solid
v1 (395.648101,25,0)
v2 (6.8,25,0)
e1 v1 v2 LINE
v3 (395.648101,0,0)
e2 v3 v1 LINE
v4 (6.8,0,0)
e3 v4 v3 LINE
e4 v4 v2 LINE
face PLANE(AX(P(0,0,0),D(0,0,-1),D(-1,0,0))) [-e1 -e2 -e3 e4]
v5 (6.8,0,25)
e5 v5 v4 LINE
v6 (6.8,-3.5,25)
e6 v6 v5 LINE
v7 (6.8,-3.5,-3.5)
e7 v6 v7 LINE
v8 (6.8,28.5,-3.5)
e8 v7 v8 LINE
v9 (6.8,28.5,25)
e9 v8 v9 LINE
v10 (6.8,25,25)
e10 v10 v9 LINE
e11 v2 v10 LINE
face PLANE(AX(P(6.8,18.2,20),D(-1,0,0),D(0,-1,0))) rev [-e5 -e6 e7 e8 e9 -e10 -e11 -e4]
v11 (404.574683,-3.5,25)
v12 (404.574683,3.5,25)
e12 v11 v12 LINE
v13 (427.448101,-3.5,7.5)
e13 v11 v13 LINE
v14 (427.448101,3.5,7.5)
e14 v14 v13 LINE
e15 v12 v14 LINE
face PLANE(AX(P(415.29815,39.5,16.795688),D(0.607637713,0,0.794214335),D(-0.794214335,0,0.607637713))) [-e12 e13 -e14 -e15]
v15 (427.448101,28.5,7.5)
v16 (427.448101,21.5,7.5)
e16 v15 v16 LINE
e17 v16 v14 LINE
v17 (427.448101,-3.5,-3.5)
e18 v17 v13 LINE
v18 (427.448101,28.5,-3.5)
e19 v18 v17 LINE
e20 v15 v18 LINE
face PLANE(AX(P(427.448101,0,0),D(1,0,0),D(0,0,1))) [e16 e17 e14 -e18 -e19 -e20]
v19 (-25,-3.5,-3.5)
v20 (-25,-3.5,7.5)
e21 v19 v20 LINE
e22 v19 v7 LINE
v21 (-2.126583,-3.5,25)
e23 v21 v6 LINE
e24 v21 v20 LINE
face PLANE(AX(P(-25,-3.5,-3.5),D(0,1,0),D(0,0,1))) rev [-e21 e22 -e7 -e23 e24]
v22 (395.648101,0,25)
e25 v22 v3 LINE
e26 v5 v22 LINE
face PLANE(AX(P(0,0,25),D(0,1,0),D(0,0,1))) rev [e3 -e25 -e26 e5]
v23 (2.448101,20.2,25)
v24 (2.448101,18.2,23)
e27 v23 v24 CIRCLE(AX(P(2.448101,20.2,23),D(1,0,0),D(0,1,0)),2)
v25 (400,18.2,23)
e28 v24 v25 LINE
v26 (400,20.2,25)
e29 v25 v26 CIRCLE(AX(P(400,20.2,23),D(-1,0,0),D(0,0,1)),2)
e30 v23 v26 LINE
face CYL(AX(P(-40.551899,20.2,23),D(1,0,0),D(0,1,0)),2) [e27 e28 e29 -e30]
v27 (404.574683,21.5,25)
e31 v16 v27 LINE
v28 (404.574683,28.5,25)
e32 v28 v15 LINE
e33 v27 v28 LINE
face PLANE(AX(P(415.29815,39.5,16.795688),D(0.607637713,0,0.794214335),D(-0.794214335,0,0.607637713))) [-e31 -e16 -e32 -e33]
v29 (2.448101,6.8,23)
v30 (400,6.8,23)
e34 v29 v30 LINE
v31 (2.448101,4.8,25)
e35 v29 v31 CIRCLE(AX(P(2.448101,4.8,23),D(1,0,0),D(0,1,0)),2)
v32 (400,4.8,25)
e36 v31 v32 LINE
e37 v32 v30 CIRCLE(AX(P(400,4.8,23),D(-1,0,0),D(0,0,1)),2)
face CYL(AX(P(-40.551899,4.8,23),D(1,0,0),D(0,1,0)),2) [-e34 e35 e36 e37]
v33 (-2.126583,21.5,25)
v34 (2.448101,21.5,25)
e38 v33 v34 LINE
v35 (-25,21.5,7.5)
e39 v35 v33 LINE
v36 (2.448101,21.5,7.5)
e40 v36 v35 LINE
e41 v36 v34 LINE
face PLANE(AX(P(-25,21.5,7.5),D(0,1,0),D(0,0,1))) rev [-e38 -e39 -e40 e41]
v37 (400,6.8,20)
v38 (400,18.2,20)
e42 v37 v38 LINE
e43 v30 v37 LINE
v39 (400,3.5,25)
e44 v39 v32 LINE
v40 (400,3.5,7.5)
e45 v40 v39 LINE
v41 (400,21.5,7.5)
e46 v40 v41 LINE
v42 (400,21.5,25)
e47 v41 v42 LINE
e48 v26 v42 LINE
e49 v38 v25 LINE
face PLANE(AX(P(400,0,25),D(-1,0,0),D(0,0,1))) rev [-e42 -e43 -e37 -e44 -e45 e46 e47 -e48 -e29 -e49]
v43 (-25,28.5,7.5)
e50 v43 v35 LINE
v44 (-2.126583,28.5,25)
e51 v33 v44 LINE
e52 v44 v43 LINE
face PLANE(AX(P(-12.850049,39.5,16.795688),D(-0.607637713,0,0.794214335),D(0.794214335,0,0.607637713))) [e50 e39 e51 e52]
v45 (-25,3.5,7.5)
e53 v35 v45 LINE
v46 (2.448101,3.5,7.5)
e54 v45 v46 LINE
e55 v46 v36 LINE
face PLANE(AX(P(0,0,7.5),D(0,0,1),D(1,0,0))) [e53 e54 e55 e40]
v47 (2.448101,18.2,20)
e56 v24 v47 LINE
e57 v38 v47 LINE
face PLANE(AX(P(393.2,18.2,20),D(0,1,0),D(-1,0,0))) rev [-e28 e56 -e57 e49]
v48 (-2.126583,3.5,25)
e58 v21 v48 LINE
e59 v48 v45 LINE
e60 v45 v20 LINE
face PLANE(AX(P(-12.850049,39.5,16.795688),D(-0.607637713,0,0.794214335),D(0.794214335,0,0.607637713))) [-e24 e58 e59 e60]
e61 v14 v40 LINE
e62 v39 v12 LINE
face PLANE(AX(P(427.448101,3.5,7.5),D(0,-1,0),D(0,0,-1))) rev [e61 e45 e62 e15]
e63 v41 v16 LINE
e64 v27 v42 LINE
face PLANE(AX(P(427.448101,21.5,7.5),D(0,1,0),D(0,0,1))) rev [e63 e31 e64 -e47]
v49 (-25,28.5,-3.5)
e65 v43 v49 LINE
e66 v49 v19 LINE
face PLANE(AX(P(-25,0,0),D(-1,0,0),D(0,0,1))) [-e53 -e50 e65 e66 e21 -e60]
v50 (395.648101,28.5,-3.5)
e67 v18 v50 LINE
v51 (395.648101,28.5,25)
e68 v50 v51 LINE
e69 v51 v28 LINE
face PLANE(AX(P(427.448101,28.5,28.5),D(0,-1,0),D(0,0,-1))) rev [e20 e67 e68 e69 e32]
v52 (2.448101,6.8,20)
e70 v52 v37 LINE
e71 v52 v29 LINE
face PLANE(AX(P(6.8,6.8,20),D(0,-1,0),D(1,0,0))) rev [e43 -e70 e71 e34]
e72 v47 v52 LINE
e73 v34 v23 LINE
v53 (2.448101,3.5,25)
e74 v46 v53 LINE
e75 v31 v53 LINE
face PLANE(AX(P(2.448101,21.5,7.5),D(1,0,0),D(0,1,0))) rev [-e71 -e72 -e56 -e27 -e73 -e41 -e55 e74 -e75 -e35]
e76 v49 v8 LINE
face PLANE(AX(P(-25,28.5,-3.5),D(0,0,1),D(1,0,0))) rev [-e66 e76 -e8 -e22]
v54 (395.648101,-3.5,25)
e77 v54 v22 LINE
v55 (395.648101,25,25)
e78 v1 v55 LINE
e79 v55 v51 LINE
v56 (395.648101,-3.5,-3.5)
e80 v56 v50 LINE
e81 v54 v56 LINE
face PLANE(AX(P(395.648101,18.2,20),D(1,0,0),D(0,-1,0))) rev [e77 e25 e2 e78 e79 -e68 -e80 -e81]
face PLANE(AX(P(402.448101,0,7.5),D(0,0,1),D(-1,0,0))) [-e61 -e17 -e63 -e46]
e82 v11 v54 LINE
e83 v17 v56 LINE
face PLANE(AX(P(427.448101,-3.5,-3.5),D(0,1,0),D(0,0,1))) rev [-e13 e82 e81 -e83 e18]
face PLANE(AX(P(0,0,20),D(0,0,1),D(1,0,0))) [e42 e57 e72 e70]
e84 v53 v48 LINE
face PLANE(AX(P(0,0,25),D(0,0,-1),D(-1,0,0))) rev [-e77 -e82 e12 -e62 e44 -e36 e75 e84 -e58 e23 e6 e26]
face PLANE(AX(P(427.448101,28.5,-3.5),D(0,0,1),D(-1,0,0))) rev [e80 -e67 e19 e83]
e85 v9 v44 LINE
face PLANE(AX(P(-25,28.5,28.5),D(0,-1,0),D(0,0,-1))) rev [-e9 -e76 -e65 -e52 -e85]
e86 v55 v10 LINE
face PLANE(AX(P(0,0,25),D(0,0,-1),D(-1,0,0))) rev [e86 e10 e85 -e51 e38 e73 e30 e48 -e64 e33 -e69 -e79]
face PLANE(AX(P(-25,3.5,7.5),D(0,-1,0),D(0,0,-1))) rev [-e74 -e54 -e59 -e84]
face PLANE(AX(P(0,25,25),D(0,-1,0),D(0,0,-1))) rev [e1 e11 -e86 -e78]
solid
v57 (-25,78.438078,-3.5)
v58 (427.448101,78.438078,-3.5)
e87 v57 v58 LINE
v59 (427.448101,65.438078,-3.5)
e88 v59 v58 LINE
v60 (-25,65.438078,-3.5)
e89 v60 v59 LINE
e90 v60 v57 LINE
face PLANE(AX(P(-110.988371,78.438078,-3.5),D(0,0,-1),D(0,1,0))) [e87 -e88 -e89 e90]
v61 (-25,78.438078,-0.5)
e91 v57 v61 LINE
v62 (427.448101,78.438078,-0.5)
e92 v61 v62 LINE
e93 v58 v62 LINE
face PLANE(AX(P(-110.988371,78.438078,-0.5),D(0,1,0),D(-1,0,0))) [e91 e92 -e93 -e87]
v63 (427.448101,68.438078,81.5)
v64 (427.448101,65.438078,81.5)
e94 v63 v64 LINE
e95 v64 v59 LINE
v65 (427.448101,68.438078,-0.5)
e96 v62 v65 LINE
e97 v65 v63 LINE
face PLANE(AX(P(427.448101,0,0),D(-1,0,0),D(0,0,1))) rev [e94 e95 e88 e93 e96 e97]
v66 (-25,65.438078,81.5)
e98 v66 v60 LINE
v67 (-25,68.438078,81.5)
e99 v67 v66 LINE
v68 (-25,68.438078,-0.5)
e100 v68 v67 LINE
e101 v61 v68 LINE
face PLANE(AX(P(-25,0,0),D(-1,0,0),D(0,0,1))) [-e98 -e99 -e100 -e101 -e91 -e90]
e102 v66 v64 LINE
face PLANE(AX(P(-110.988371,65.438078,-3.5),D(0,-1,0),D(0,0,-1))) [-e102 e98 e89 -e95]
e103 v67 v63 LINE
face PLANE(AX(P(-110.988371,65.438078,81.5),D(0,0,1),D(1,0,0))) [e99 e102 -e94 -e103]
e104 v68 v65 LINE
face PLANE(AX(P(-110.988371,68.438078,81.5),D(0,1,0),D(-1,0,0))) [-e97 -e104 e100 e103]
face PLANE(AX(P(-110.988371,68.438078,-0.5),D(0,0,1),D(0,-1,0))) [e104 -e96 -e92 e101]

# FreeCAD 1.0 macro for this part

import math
import FreeCAD as App
import Part
import Sketcher
from FreeCAD import Vector
Q = App.Units.Quantity

doc = App.newDocument("Part")
params = doc.addObject("Spreadsheet::Sheet", "Params")
for row, (alias, value) in enumerate([
    ("sketch1_width", "400 mm"),
    ("sketch1_height", "25 mm"),
    ("pad1_length", "25 mm"),
    ("sketch2_width", "386.4 mm"),
    ("sketch2_height", "11.4 mm"),
    ("pocket1_length", "5 mm"),
    ("sketch3_width", "32 mm"),
    ("sketch3_width2", "25 mm"),
    ("pad2_length", "6.8 mm"),
    ("sketch4_width", "32 mm"),
    ("pad3_length", "25 mm"),
    ("sketch5_height", "18 mm"),
    ("pocket2_length", "21 mm"),
    ("sketch6_height", "21 mm"),
    ("pocket3_length", "43 mm"),
    ("sketch7_radius", "2 mm"),
    ("sketch7_height", "3 mm"),
    ("sketch7_width", "11.4 mm"),
    ("sketch8_width", "13 mm"),
    ("sketch8_width2", "10 mm"),
    ("sketch8_height", "82 mm"),
    ("pad4_length", "452.448101 mm"),
], start=1):
    params.set(f"A{row}", alias)
    params.set(f"B{row}", "=" + value)
    params.setAlias(f"B{row}", alias)

body = doc.addObject("PartDesign::Body", "Body")

# Sketch on XY plane
sketch1 = doc.addObject("Sketcher::SketchObject", "Sketch")
body.addObject(sketch1)
sketch1.AttachmentSupport = (doc.XY_Plane, [""])
sketch1.MapMode = "FlatFace"
sketch1.addGeometry([
    Part.LineSegment(Vector(0, 25, 0), Vector(0, 0, 0)),
    Part.LineSegment(Vector(0, 0, 0), Vector(400, 0, 0)),
    Part.LineSegment(Vector(400, 0, 0), Vector(400, 25, 0)),
    Part.LineSegment(Vector(400, 25, 0), Vector(0, 25, 0)),
], False)
sketch1.addConstraint([
    Sketcher.Constraint("Coincident", 0, 2, 1, 1),
    Sketcher.Constraint("Coincident", 1, 2, 2, 1),
    Sketcher.Constraint("Coincident", 2, 2, 3, 1),
    Sketcher.Constraint("Coincident", 3, 2, 0, 1),
    Sketcher.Constraint("Vertical", 0),
    Sketcher.Constraint("Horizontal", 1),
    Sketcher.Constraint("Vertical", 2),
    Sketcher.Constraint("Horizontal", 3),
    Sketcher.Constraint("Coincident", 0, 2, -1, 1),
    Sketcher.Constraint("DistanceX", 1, 1, 1, 2, Q("400 mm")),
    Sketcher.Constraint("DistanceY", 0, 2, 0, 1, Q("25 mm")),
])
sketch1.setExpression("Constraints[9]", "Params.sketch1_width")
sketch1.setExpression("Constraints[10]", "Params.sketch1_height")
pad1 = doc.addObject("PartDesign::Pad", "Pad")
body.addObject(pad1)
pad1.Profile = sketch1
pad1.setExpression("Length", "Params.pad1_length")

# Sketch on XY plane
sketch2 = doc.addObject("Sketcher::SketchObject", "Sketch001")
body.addObject(sketch2)
sketch2.AttachmentSupport = (doc.XY_Plane, [""])
sketch2.MapMode = "FlatFace"
sketch2.AttachmentOffset = App.Placement(Vector(0, 0, 25), App.Rotation())
sketch2.addGeometry([
    Part.LineSegment(Vector(6.8, 18.2, 0), Vector(6.8, 6.8, 0)),
    Part.LineSegment(Vector(6.8, 6.8, 0), Vector(393.2, 6.8, 0)),
    Part.LineSegment(Vector(393.2, 6.8, 0), Vector(393.2, 18.2, 0)),
    Part.LineSegment(Vector(393.2, 18.2, 0), Vector(6.8, 18.2, 0)),
], False)
sketch2.addConstraint([
    Sketcher.Constraint("Coincident", 0, 2, 1, 1),
    Sketcher.Constraint("Coincident", 1, 2, 2, 1),
    Sketcher.Constraint("Coincident", 2, 2, 3, 1),
    Sketcher.Constraint("Coincident", 3, 2, 0, 1),
    Sketcher.Constraint("Vertical", 0),
    Sketcher.Constraint("Horizontal", 1),
    Sketcher.Constraint("Vertical", 2),
    Sketcher.Constraint("Horizontal", 3),
    Sketcher.Constraint("DistanceX", 1, 1, 1, 2, Q("386.4 mm")),
    Sketcher.Constraint("DistanceY", 0, 2, 0, 1, Q("11.4 mm")),
    Sketcher.Constraint("DistanceX", -1, 1, 0, 2, Q("6.8 mm")),
    Sketcher.Constraint("DistanceY", -1, 1, 0, 2, Q("6.8 mm")),
])
sketch2.setExpression("Constraints[8]", "Params.sketch2_width")
sketch2.setExpression("Constraints[9]", "Params.sketch2_height")
pocket1 = doc.addObject("PartDesign::Pocket", "Pocket")
body.addObject(pocket1)
pocket1.Profile = sketch2
pocket1.setExpression("Length", "Params.pocket1_length")
body2 = doc.addObject("PartDesign::Body", "Body001")

# Sketch on YZ plane
sketch3 = doc.addObject("Sketcher::SketchObject", "Sketch002")
body2.addObject(sketch3)
sketch3.AttachmentSupport = (doc.getObject("YZ_Plane001"), [""])
sketch3.MapMode = "FlatFace"
sketch3.AttachmentOffset = App.Placement(Vector(0, 0, 6.8), App.Rotation())
sketch3.addGeometry([
    Part.LineSegment(Vector(28.5, 28.5, 0), Vector(-3.5, 28.5, 0)),  # 0
    Part.LineSegment(Vector(-3.5, 28.5, 0), Vector(-3.5, -3.5, 0)),  # 1
    Part.LineSegment(Vector(-3.5, -3.5, 0), Vector(28.5, -3.5, 0)),  # 2
    Part.LineSegment(Vector(28.5, -3.5, 0), Vector(28.5, 28.5, 0)),  # 3
    Part.LineSegment(Vector(0, 0, 0), Vector(0, 25, 0)),  # 4
    Part.LineSegment(Vector(0, 25, 0), Vector(25, 25, 0)),  # 5
    Part.LineSegment(Vector(25, 25, 0), Vector(25, 0, 0)),  # 6
    Part.LineSegment(Vector(25, 0, 0), Vector(0, 0, 0)),  # 7
], False)
sketch3.addConstraint([
    Sketcher.Constraint("Coincident", 0, 2, 1, 1),
    Sketcher.Constraint("Coincident", 1, 2, 2, 1),
    Sketcher.Constraint("Coincident", 2, 2, 3, 1),
    Sketcher.Constraint("Coincident", 3, 2, 0, 1),
    Sketcher.Constraint("Coincident", 4, 2, 5, 1),
    Sketcher.Constraint("Coincident", 5, 2, 6, 1),
    Sketcher.Constraint("Coincident", 6, 2, 7, 1),
    Sketcher.Constraint("Coincident", 7, 2, 4, 1),
    Sketcher.Constraint("Horizontal", 0),
    Sketcher.Constraint("Vertical", 1),
    Sketcher.Constraint("Horizontal", 2),
    Sketcher.Constraint("Vertical", 3),
    Sketcher.Constraint("Vertical", 4),
    Sketcher.Constraint("Horizontal", 5),
    Sketcher.Constraint("Vertical", 6),
    Sketcher.Constraint("Horizontal", 7),
    Sketcher.Constraint("Coincident", 7, 2, -1, 1),
    Sketcher.Constraint("Equal", 2, 1),
    Sketcher.Constraint("Equal", 7, 4),
    Sketcher.Constraint("DistanceX", 0, 2, 0, 1, Q("32 mm")),
    Sketcher.Constraint("DistanceX", 5, 1, 5, 2, Q("25 mm")),
    Sketcher.Constraint("DistanceX", 0, 2, -1, 1, Q("3.5 mm")),
    Sketcher.Constraint("DistanceY", -1, 1, 0, 2, Q("28.5 mm")),
])
sketch3.setExpression("Constraints[19]", "Params.sketch3_width")
sketch3.setExpression("Constraints[20]", "Params.sketch3_width2")
pad2 = doc.addObject("PartDesign::Pad", "Pad001")
body2.addObject(pad2)
pad2.Profile = sketch3
pad2.setExpression("Length", "Params.pad2_length")
pad2.Reversed = True
doc.recompute()

boolean = doc.addObject("PartDesign::Boolean", "Boolean")
body.addObject(boolean)
boolean.Type = "Fuse"
boolean.addObjects([body2])

# Sketch on YZ plane
sketch4 = doc.addObject("Sketcher::SketchObject", "Sketch003")
body.addObject(sketch4)
sketch4.AttachmentSupport = (doc.YZ_Plane, [""])
sketch4.MapMode = "FlatFace"
sketch4.addGeometry([
    Part.LineSegment(Vector(28.5, -3.5, 0), Vector(-3.5, -3.5, 0)),
    Part.LineSegment(Vector(-3.5, -3.5, 0), Vector(-3.5, 28.5, 0)),
    Part.LineSegment(Vector(-3.5, 28.5, 0), Vector(28.5, 28.5, 0)),
    Part.LineSegment(Vector(28.5, 28.5, 0), Vector(28.5, -3.5, 0)),
], False)
sketch4.addConstraint([
    Sketcher.Constraint("Coincident", 0, 2, 1, 1),
    Sketcher.Constraint("Coincident", 1, 2, 2, 1),
    Sketcher.Constraint("Coincident", 2, 2, 3, 1),
    Sketcher.Constraint("Coincident", 3, 2, 0, 1),
    Sketcher.Constraint("Horizontal", 0),
    Sketcher.Constraint("Vertical", 1),
    Sketcher.Constraint("Horizontal", 2),
    Sketcher.Constraint("Vertical", 3),
    Sketcher.Constraint("Equal", 2, 1),
    Sketcher.Constraint("DistanceX", 0, 2, 0, 1, Q("32 mm")),
    Sketcher.Constraint("DistanceX", 0, 2, -1, 1, Q("3.5 mm")),
    Sketcher.Constraint("DistanceY", 0, 2, -1, 1, Q("3.5 mm")),
])
sketch4.setExpression("Constraints[9]", "Params.sketch4_width")
pad3 = doc.addObject("PartDesign::Pad", "Pad002")
body.addObject(pad3)
pad3.Profile = sketch4
pad3.setExpression("Length", "Params.pad3_length")
pad3.Reversed = True

# Sketch on XY plane
sketch5 = doc.addObject("Sketcher::SketchObject", "Sketch004")
body.addObject(sketch5)
sketch5.AttachmentSupport = (doc.XY_Plane, [""])
sketch5.MapMode = "FlatFace"
sketch5.AttachmentOffset = App.Placement(Vector(0, 0, 28.5), App.Rotation())
sketch5.addGeometry([
    Part.LineSegment(Vector(-25, 21.5, 0), Vector(-25, 3.5, 0)),
    Part.LineSegment(Vector(-25, 3.5, 0), Vector(2.448101, 3.5, 0)),
    Part.LineSegment(Vector(2.448101, 3.5, 0), Vector(2.448101, 21.5, 0)),
    Part.LineSegment(Vector(2.448101, 21.5, 0), Vector(-25, 21.5, 0)),
], False)
sketch5.addConstraint([
    Sketcher.Constraint("Coincident", 0, 2, 1, 1),
    Sketcher.Constraint("Coincident", 1, 2, 2, 1),
    Sketcher.Constraint("Coincident", 2, 2, 3, 1),
    Sketcher.Constraint("Coincident", 3, 2, 0, 1),
    Sketcher.Constraint("Vertical", 0),
    Sketcher.Constraint("Horizontal", 1),
    Sketcher.Constraint("Vertical", 2),
    Sketcher.Constraint("Horizontal", 3),
    Sketcher.Constraint("DistanceY", 0, 2, 0, 1, Q("18 mm")),
    Sketcher.Constraint("DistanceX", 0, 2, -1, 1, Q("25 mm")),
    Sketcher.Constraint("DistanceY", -1, 1, 0, 2, Q("3.5 mm")),
    Sketcher.Constraint("DistanceX", 1, 1, 1, 2, Q("27.448101 mm")),
])
sketch5.setExpression("Constraints[8]", "Params.sketch5_height")
pocket2 = doc.addObject("PartDesign::Pocket", "Pocket001")
body.addObject(pocket2)
pocket2.Profile = sketch5
pocket2.setExpression("Length", "Params.pocket2_length")

# Sketch on XZ plane
sketch6 = doc.addObject("Sketcher::SketchObject", "Sketch005")
body.addObject(sketch6)
sketch6.AttachmentSupport = (doc.XZ_Plane, [""])
sketch6.MapMode = "FlatFace"
sketch6.AttachmentOffset = App.Placement(Vector(0, 0, 3.5), App.Rotation())
sketch6.addGeometry([
    Part.LineSegment(Vector(2.448101, 28.5, 0), Vector(-25, 28.5, 0)),
    Part.LineSegment(Vector(-25, 28.5, 0), Vector(-25, 7.5, 0)),
    Part.LineSegment(Vector(-25, 7.5, 0), Vector(2.448101, 28.5, 0)),
], False)
sketch6.addConstraint([
    Sketcher.Constraint("Coincident", 0, 2, 1, 1),
    Sketcher.Constraint("Coincident", 1, 2, 2, 1),
    Sketcher.Constraint("Coincident", 2, 2, 0, 1),
    Sketcher.Constraint("Horizontal", 0),
    Sketcher.Constraint("Vertical", 1),
    Sketcher.Constraint("DistanceY", 1, 2, 1, 1, Q("21 mm")),
    Sketcher.Constraint("DistanceX", 0, 2, -1, 1, Q("25 mm")),
    Sketcher.Constraint("DistanceY", -1, 1, 0, 2, Q("28.5 mm")),
    Sketcher.Constraint("DistanceX", 0, 2, 0, 1, Q("27.448101 mm")),
])
sketch6.setExpression("Constraints[5]", "Params.sketch6_height")
pocket3 = doc.addObject("PartDesign::Pocket", "Pocket002")
body.addObject(pocket3)
pocket3.Profile = sketch6
pocket3.setExpression("Length", "Params.pocket3_length")

# Sketch on YZ plane
sketch7 = doc.addObject("Sketcher::SketchObject", "Sketch006")
body.addObject(sketch7)
sketch7.AttachmentSupport = (doc.YZ_Plane, [""])
sketch7.MapMode = "FlatFace"
sketch7.AttachmentOffset = App.Placement(Vector(0, 0, 2.448101), App.Rotation())
sketch7.addGeometry([
    Part.LineSegment(Vector(6.8, 20, 0), Vector(6.8, 23, 0)),  # 0
    Part.ArcOfCircle(Part.Circle(Vector(4.8, 23, 0), Vector(0, 0, 1), 2), math.radians(0), math.radians(90)),  # 1
    Part.LineSegment(Vector(4.8, 25, 0), Vector(-5.02084, 25, 0)),  # 2
    Part.LineSegment(Vector(-5.02084, 25, 0), Vector(-5.02084, 31.99159, 0)),  # 3
    Part.LineSegment(Vector(-5.02084, 31.99159, 0), Vector(30.74642, 31.99159, 0)),  # 4
    Part.LineSegment(Vector(30.74642, 31.99159, 0), Vector(30.74642, 25, 0)),  # 5
    Part.LineSegment(Vector(30.74642, 25, 0), Vector(20.2, 25, 0)),  # 6
    Part.ArcOfCircle(Part.Circle(Vector(20.2, 23, 0), Vector(0, 0, 1), 2), math.radians(90), math.radians(180)),  # 7
    Part.LineSegment(Vector(18.2, 23, 0), Vector(18.2, 20, 0)),  # 8
    Part.LineSegment(Vector(18.2, 20, 0), Vector(6.8, 20, 0)),  # 9
], False)
sketch7.addConstraint([
    Sketcher.Constraint("Tangent", 0, 2, 1, 1),
    Sketcher.Constraint("Tangent", 1, 2, 2, 1),
    Sketcher.Constraint("Coincident", 2, 2, 3, 1),
    Sketcher.Constraint("Coincident", 3, 2, 4, 1),
    Sketcher.Constraint("Coincident", 4, 2, 5, 1),
    Sketcher.Constraint("Coincident", 5, 2, 6, 1),
    Sketcher.Constraint("Tangent", 6, 2, 7, 1),
    Sketcher.Constraint("Tangent", 7, 2, 8, 1),
    Sketcher.Constraint("Coincident", 8, 2, 9, 1),
    Sketcher.Constraint("Coincident", 9, 2, 0, 1),
    Sketcher.Constraint("Vertical", 0),
    Sketcher.Constraint("Horizontal", 2),
    Sketcher.Constraint("Vertical", 3),
    Sketcher.Constraint("Horizontal", 4),
    Sketcher.Constraint("Vertical", 5),
    Sketcher.Constraint("Horizontal", 6),
    Sketcher.Constraint("Vertical", 8),
    Sketcher.Constraint("Horizontal", 9),
    Sketcher.Constraint("Equal", 1, 7),
    Sketcher.Constraint("Horizontal", 1, 3, 7, 3),
    Sketcher.Constraint("Radius", 1, Q("2 mm")),
    Sketcher.Constraint("DistanceY", 0, 1, 0, 2, Q("3 mm")),
    Sketcher.Constraint("DistanceX", 9, 2, 9, 1, Q("11.4 mm")),
    Sketcher.Constraint("DistanceY", -1, 1, 1, 3, Q("23 mm")),
    Sketcher.Constraint("DistanceX", -1, 1, 1, 3, Q("4.8 mm")),
    Sketcher.Constraint("DistanceX", 2, 2, 2, 1, Q("9.82084 mm")),
    Sketcher.Constraint("DistanceX", 4, 1, 4, 2, Q("35.767261 mm")),
    Sketcher.Constraint("DistanceY", 3, 1, 3, 2, Q("6.99159 mm")),
])
sketch7.setExpression("Constraints[20]", "Params.sketch7_radius")
sketch7.setExpression("Constraints[21]", "Params.sketch7_height")
sketch7.setExpression("Constraints[22]", "Params.sketch7_width")
pocket4 = doc.addObject("PartDesign::Pocket", "Pocket003")
body.addObject(pocket4)
pocket4.Profile = sketch7
pocket4.Type = "ThroughAll"
pocket4.Midplane = True
body3 = doc.addObject("PartDesign::Body", "Body002")
doc.recompute()

body3.BaseFeature = body
doc.recompute()

mirroring = doc.addObject("Part::Mirroring", "Mirroring")
mirroring.Source = body
mirroring.Base = Vector(201.22405, 0, 0)
mirroring.Normal = Vector(1, 0, 0)
body4 = doc.addObject("PartDesign::Body", "Body003")
body4.BaseFeature = mirroring
boolean2 = doc.addObject("PartDesign::Boolean", "Boolean001")
body3.addObject(boolean2)
boolean2.Type = "Fuse"
boolean2.addObjects([body4])
doc.recompute()
body5 = doc.addObject("PartDesign::Body", "Body004")

# Sketch on YZ plane
sketch8 = doc.addObject("Sketcher::SketchObject", "Sketch007")
body5.addObject(sketch8)
sketch8.AttachmentSupport = (doc.getObject("YZ_Plane004"), [""])
sketch8.MapMode = "FlatFace"
sketch8.AttachmentOffset = App.Placement(Vector(0, 0, 427.448101), App.Rotation())
sketch8.addGeometry([
    Part.LineSegment(Vector(65.438078, -3.5, 0), Vector(78.438078, -3.5, 0)),  # 0
    Part.LineSegment(Vector(78.438078, -3.5, 0), Vector(78.438078, -0.5, 0)),  # 1
    Part.LineSegment(Vector(78.438078, -0.5, 0), Vector(68.438078, -0.5, 0)),  # 2
    Part.LineSegment(Vector(68.438078, -0.5, 0), Vector(68.438078, 81.5, 0)),  # 3
    Part.LineSegment(Vector(68.438078, 81.5, 0), Vector(65.438078, 81.5, 0)),  # 4
    Part.LineSegment(Vector(65.438078, 81.5, 0), Vector(65.438078, -3.5, 0)),  # 5
], False)
sketch8.addConstraint([
    Sketcher.Constraint("Coincident", 0, 2, 1, 1),
    Sketcher.Constraint("Coincident", 1, 2, 2, 1),
    Sketcher.Constraint("Coincident", 2, 2, 3, 1),
    Sketcher.Constraint("Coincident", 3, 2, 4, 1),
    Sketcher.Constraint("Coincident", 4, 2, 5, 1),
    Sketcher.Constraint("Coincident", 5, 2, 0, 1),
    Sketcher.Constraint("Horizontal", 0),
    Sketcher.Constraint("Vertical", 1),
    Sketcher.Constraint("Horizontal", 2),
    Sketcher.Constraint("Vertical", 3),
    Sketcher.Constraint("Horizontal", 4),
    Sketcher.Constraint("Vertical", 5),
    Sketcher.Constraint("Equal", 4, 1),
    Sketcher.Constraint("DistanceX", 0, 1, 0, 2, Q("13 mm")),
    Sketcher.Constraint("DistanceX", 2, 2, 2, 1, Q("10 mm")),
    Sketcher.Constraint("DistanceY", 3, 1, 3, 2, Q("82 mm")),
    Sketcher.Constraint("DistanceY", 0, 2, -1, 1, Q("3.5 mm")),
    Sketcher.Constraint("DistanceX", -1, 1, 0, 2, Q("78.438078 mm")),
])
sketch8.setExpression("Constraints[13]", "Params.sketch8_width")
sketch8.setExpression("Constraints[14]", "Params.sketch8_width2")
sketch8.setExpression("Constraints[15]", "Params.sketch8_height")
pad4 = doc.addObject("PartDesign::Pad", "Pad003")
body5.addObject(pad4)
pad4.Profile = sketch8
pad4.setExpression("Length", "Params.pad4_length")
pad4.Reversed = True
mirroring.Visibility = False

doc.recompute()
